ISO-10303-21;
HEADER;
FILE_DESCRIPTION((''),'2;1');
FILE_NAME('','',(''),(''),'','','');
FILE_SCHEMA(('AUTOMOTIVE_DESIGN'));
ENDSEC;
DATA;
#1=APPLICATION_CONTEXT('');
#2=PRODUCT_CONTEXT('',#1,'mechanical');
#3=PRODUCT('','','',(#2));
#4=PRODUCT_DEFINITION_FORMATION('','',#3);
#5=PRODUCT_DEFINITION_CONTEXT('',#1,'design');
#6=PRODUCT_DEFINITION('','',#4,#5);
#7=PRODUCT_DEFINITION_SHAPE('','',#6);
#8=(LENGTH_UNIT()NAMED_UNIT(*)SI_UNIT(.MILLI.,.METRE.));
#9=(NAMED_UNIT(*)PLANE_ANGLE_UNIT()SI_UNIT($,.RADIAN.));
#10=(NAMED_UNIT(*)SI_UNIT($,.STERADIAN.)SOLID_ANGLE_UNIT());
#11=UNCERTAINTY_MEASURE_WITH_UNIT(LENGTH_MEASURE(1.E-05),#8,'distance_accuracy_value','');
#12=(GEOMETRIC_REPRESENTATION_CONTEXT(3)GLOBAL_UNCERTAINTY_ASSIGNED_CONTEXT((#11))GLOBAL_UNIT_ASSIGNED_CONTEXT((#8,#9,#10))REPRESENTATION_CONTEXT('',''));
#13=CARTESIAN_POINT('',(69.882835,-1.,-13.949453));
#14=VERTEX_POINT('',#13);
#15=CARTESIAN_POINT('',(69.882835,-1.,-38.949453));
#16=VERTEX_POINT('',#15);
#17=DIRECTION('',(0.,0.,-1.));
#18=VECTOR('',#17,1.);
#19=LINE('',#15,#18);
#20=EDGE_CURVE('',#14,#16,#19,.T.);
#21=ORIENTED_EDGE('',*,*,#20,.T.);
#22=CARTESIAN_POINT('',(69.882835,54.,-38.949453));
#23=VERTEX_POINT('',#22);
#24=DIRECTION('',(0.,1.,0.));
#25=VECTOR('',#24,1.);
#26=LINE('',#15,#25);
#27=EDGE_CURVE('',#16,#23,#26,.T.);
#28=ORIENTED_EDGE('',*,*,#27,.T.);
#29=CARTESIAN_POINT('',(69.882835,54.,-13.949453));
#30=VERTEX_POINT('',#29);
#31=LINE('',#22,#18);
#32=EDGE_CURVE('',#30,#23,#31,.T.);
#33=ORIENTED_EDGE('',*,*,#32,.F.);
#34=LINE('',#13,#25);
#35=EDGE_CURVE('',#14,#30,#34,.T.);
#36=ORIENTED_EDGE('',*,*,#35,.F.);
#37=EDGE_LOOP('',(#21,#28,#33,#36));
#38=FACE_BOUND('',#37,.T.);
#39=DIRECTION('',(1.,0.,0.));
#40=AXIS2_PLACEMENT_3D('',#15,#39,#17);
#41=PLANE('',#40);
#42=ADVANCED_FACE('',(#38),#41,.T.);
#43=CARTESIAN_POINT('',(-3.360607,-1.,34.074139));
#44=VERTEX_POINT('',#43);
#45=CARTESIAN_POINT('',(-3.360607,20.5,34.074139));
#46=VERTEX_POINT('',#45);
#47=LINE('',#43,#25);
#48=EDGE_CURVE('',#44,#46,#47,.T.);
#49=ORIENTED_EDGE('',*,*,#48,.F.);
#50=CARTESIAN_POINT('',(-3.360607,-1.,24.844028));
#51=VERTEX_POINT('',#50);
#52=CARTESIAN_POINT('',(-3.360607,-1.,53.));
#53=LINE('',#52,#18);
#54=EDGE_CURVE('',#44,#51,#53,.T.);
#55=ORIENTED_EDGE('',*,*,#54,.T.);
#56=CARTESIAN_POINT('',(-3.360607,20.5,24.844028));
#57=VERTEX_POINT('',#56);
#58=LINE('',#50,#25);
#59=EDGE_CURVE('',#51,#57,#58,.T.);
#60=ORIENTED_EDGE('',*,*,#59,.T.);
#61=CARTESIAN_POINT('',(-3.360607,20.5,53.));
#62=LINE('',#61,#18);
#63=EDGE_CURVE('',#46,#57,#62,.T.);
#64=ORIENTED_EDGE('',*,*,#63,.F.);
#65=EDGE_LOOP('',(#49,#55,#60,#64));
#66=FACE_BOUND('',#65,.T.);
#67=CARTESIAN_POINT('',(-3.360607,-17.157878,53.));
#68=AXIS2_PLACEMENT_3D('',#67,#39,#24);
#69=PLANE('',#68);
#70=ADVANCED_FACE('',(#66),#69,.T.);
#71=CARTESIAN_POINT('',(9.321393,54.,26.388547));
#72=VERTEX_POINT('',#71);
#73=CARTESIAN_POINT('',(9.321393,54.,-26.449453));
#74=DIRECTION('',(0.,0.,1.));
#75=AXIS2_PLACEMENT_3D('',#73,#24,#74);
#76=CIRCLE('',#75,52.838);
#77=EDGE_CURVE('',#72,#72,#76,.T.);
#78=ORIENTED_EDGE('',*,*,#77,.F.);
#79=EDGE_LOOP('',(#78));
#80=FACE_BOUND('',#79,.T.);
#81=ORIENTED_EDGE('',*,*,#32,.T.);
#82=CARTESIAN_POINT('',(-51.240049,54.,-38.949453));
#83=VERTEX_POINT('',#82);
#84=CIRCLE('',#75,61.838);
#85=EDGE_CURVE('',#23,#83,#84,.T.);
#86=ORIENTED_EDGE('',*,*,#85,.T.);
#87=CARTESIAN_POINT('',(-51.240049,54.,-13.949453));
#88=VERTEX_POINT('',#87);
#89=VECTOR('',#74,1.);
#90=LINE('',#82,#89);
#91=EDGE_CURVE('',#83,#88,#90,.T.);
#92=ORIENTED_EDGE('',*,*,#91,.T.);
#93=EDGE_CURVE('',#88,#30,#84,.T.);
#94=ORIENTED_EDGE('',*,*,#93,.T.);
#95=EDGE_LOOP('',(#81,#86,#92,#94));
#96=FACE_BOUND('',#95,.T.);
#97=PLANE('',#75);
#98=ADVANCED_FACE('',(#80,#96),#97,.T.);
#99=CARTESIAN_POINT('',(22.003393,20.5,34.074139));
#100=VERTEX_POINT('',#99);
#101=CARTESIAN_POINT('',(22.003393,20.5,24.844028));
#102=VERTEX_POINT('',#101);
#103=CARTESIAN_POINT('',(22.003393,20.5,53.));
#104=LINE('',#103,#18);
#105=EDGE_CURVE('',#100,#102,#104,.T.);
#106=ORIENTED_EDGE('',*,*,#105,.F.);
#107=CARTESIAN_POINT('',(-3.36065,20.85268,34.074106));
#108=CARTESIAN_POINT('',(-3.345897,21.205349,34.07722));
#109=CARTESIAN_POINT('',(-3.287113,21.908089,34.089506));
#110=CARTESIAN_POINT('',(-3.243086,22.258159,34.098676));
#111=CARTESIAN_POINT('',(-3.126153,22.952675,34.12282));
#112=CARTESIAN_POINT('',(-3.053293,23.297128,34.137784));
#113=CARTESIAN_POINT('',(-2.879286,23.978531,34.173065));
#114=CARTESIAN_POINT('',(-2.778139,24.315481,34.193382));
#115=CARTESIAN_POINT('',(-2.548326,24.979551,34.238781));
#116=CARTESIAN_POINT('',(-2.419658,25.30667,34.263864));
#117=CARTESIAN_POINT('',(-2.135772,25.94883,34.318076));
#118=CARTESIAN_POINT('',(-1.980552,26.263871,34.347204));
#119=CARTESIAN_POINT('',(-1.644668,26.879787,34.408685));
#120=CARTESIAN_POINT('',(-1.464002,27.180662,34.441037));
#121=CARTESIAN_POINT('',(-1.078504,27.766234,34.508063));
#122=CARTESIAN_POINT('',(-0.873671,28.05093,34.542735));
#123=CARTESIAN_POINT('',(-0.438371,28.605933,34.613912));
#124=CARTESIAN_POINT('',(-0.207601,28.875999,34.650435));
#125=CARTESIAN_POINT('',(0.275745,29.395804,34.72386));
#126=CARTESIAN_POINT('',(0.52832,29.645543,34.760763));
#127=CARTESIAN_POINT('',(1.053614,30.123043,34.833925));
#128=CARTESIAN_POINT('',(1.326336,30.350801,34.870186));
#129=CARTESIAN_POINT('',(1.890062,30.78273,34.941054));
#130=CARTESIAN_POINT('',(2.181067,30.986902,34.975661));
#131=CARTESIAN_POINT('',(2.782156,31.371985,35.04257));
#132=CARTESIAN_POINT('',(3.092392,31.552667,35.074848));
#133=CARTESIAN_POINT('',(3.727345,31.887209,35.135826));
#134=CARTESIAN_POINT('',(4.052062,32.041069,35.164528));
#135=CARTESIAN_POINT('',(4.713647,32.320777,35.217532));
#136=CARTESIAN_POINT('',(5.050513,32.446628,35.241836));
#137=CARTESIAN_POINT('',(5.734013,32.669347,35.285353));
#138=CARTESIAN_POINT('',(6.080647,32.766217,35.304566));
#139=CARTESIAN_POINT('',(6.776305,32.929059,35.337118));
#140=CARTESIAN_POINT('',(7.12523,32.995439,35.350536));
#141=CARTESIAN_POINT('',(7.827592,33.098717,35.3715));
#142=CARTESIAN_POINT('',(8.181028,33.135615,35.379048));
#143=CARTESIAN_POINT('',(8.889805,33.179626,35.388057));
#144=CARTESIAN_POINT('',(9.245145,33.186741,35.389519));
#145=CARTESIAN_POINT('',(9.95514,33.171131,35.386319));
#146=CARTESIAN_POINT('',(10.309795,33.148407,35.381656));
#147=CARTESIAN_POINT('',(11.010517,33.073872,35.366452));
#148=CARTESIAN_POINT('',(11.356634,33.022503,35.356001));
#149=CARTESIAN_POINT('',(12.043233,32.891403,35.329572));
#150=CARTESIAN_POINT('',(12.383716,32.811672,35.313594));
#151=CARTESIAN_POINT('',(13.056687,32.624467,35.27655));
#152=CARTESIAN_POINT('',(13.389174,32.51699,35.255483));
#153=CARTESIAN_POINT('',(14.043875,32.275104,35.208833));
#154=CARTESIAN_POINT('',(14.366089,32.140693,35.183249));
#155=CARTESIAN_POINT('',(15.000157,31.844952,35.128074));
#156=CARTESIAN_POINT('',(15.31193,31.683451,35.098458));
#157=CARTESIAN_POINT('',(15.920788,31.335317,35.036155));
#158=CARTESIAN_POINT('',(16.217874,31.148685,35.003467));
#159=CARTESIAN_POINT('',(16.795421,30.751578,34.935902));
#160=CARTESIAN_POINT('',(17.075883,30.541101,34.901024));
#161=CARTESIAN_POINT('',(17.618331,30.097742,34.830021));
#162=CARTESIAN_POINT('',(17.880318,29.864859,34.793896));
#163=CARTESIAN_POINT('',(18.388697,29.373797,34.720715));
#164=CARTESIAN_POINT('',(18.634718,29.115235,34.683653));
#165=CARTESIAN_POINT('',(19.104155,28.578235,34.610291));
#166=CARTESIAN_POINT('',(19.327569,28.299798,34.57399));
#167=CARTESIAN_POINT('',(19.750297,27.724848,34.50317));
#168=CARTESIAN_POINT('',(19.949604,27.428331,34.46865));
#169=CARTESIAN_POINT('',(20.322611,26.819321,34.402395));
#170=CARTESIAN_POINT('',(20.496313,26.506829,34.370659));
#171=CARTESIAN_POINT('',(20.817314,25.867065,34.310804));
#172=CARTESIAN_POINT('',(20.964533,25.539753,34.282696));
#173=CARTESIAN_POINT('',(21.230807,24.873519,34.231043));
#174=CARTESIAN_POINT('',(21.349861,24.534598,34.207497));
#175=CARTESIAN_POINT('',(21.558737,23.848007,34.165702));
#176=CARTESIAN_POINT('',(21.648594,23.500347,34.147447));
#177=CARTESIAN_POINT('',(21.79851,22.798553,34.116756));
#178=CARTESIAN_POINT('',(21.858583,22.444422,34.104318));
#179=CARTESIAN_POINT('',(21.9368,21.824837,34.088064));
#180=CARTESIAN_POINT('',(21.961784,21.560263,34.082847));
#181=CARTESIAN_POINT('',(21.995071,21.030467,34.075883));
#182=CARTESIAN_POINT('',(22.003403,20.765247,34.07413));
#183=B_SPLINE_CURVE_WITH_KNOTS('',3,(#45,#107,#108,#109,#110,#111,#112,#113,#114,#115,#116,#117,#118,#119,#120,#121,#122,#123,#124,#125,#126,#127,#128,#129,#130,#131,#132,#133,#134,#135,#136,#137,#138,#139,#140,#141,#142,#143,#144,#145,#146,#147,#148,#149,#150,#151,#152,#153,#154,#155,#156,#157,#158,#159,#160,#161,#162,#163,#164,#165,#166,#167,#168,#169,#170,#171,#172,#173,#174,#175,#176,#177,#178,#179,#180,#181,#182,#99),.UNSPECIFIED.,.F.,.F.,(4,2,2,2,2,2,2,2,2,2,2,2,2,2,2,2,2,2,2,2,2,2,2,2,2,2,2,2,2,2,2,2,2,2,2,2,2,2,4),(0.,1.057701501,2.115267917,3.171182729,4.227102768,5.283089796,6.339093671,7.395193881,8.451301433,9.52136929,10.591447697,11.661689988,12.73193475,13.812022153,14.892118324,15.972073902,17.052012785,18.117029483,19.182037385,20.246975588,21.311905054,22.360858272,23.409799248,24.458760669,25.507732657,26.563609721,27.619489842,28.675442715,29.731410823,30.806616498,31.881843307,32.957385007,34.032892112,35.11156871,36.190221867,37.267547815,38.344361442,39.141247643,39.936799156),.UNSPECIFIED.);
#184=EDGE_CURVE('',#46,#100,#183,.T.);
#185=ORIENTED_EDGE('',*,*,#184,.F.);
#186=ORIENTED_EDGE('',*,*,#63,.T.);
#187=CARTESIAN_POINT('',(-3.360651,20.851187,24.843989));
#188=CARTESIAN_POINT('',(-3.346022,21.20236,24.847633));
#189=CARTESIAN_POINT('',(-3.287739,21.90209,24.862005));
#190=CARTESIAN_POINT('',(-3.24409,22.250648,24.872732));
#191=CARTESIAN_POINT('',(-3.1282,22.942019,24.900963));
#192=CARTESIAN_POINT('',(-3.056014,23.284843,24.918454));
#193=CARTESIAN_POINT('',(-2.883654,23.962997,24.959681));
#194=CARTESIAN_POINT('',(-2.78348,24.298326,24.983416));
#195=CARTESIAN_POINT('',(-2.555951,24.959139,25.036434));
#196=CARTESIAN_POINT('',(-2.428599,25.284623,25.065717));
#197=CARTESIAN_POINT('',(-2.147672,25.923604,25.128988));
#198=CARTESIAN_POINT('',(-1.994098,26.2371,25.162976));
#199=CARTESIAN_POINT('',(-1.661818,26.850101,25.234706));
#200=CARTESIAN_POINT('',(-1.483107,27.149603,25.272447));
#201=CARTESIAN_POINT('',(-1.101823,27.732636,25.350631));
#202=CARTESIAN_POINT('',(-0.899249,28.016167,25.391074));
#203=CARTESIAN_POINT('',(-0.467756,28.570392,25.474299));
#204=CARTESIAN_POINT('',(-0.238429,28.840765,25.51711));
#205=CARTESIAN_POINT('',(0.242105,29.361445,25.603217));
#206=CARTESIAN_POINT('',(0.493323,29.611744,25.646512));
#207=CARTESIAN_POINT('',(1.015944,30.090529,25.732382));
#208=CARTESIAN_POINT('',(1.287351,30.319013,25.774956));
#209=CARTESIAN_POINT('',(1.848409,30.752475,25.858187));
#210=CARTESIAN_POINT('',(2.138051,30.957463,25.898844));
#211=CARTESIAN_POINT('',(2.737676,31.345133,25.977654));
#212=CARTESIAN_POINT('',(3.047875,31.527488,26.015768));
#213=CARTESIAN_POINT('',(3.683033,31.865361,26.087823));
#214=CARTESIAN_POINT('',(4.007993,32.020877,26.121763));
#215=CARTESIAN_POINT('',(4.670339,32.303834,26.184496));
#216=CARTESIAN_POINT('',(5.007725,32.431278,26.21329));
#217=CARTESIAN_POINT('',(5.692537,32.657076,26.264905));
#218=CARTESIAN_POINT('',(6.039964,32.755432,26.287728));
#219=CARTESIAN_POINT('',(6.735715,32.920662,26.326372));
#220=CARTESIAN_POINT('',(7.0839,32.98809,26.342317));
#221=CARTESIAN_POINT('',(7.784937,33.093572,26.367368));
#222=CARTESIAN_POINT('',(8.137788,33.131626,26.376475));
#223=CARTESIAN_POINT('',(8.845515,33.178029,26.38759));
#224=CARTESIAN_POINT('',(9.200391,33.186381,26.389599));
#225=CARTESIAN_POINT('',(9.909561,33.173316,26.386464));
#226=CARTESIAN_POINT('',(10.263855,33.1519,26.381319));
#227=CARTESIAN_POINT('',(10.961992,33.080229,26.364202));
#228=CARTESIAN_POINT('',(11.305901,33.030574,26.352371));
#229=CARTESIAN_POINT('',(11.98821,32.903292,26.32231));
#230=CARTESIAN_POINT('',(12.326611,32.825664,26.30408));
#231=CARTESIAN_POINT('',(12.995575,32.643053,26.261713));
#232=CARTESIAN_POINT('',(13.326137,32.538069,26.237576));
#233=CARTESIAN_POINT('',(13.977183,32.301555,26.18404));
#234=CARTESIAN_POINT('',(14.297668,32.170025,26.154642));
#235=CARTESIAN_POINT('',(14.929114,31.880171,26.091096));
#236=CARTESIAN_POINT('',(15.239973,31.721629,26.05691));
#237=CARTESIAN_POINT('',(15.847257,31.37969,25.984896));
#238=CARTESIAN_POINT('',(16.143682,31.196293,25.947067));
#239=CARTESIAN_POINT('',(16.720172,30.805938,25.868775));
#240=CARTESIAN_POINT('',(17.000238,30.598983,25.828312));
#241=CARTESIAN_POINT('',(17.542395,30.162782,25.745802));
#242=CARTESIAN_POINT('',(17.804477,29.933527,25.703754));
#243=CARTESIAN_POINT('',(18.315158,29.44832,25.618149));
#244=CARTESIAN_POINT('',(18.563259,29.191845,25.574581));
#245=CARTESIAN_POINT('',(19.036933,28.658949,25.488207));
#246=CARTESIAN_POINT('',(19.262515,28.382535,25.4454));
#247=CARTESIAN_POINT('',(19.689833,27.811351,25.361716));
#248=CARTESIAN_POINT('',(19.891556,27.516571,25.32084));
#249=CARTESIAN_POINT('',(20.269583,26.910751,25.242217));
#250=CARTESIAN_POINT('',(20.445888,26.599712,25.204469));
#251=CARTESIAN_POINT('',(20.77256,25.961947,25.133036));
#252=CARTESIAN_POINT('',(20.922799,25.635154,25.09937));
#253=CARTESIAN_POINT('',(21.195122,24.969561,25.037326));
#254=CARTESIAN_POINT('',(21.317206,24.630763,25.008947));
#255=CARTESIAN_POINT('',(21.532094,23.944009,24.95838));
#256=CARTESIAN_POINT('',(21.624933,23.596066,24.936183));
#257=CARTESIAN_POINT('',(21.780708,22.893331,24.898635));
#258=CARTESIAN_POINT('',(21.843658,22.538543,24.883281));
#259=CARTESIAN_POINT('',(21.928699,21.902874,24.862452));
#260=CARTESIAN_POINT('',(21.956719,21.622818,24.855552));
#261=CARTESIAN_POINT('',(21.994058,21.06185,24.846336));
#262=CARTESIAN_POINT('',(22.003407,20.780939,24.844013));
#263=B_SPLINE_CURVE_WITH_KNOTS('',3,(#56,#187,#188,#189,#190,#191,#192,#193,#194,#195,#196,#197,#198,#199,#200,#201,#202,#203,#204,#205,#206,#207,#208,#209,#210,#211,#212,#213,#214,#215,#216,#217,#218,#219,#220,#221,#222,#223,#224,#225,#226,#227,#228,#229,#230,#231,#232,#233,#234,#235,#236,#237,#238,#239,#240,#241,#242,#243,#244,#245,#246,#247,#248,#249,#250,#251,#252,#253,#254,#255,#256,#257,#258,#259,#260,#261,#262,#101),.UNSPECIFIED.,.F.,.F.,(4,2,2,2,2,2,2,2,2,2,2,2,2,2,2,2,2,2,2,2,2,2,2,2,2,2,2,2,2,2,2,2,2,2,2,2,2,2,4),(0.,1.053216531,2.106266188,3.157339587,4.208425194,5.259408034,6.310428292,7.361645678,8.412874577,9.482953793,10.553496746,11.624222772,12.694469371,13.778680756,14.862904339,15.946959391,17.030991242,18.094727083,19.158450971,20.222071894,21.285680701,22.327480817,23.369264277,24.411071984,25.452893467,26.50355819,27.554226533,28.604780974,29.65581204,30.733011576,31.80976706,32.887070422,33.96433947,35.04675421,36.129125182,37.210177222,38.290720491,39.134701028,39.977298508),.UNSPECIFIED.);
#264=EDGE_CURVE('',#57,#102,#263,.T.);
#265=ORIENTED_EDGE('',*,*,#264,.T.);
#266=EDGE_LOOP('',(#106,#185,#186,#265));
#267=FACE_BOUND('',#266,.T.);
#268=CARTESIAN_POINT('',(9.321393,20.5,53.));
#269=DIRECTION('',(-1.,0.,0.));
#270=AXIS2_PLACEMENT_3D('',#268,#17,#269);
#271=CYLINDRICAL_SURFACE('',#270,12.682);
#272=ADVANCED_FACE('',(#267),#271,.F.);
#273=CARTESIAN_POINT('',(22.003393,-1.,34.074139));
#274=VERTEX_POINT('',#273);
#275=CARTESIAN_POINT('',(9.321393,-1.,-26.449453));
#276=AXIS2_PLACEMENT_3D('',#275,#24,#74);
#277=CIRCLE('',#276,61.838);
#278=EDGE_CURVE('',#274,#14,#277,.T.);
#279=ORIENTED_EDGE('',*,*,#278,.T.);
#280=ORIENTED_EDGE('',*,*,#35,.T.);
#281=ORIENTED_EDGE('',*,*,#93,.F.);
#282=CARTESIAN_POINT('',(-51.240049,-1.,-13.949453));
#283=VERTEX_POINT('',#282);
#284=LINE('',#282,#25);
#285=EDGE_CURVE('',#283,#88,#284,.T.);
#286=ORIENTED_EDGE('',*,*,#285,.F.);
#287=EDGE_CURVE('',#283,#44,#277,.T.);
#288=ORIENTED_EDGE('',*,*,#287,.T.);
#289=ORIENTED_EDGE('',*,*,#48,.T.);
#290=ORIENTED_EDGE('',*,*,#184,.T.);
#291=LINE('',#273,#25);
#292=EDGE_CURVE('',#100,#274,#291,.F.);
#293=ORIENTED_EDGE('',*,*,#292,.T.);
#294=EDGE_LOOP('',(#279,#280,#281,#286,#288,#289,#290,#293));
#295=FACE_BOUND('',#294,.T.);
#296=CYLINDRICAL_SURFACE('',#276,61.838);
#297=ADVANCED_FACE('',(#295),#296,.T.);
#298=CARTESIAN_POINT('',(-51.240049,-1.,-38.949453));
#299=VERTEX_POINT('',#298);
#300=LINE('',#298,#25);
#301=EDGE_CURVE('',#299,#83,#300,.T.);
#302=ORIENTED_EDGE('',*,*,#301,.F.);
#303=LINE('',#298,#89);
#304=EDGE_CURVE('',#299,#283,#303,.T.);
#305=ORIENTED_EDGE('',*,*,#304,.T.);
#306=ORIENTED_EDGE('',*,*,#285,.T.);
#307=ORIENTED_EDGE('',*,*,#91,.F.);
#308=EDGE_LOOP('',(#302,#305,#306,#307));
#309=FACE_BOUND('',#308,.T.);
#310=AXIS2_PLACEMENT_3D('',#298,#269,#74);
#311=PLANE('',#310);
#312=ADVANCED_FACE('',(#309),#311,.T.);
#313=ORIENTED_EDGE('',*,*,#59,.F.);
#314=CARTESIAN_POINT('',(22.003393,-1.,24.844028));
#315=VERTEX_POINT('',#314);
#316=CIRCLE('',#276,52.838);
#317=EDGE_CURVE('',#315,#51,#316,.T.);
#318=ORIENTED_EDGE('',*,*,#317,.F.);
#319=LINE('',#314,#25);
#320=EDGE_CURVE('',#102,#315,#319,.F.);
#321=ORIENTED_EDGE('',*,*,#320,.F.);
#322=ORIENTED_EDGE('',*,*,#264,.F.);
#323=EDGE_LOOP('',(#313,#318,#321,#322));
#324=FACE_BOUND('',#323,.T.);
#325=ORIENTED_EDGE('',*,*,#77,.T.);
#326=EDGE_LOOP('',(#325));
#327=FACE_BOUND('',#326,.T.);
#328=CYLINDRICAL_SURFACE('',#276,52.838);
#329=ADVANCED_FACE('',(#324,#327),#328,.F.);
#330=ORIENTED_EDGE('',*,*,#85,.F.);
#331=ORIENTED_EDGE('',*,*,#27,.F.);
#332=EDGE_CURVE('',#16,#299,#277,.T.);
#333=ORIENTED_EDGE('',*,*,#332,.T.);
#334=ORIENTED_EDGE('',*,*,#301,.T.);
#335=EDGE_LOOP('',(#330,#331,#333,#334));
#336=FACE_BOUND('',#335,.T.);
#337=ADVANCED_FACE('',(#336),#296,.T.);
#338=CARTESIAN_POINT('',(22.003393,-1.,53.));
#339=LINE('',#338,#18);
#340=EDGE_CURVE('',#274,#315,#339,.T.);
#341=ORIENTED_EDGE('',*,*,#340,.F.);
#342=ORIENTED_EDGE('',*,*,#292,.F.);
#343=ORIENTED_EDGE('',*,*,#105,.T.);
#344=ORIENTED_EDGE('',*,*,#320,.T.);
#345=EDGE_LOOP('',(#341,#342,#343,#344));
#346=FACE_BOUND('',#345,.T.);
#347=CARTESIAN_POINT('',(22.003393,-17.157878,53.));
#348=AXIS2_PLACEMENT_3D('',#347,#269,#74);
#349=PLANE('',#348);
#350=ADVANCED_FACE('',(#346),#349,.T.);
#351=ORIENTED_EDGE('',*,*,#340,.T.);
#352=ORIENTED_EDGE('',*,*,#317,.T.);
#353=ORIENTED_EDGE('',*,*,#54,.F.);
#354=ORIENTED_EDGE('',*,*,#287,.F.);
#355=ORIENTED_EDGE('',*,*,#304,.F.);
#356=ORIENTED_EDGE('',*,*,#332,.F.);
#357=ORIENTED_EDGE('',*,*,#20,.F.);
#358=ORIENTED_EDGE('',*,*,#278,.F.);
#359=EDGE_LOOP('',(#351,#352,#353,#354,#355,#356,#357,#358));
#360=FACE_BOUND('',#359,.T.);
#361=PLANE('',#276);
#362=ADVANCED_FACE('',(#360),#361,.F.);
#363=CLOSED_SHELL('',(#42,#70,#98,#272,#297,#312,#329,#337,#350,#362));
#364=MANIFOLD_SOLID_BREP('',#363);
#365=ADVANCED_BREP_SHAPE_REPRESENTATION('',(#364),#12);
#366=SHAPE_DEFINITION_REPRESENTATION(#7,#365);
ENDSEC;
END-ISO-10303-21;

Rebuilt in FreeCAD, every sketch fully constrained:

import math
import FreeCAD as App
import Part
import Sketcher
from FreeCAD import Vector
Q = App.Units.Quantity

doc = App.newDocument("Part")
body = doc.addObject("PartDesign::Body", "Body")

sketch1 = doc.addObject("Sketcher::SketchObject", "Sketch")
body.addObject(sketch1)
sketch1.AttachmentSupport = (doc.XZ_Plane, [""])
sketch1.MapMode = "FlatFace"
sketch1.addGeometry([
    Part.LineSegment(Vector(-51, -39, 0), Vector(-51, -14, 0)),
    Part.ArcOfCircle(Part.Circle(Vector(9, -26, 0), Vector(0, 0, 1), 62), math.radians(12), math.radians(168)),
    Part.LineSegment(Vector(70, -14, 0), Vector(70, -39, 0)),
    Part.ArcOfCircle(Part.Circle(Vector(9, -26, 0), Vector(0, 0, 1), 62), math.radians(-168), math.radians(-12)),
    Part.Circle(Vector(9, -26, 0), Vector(0, 0, 1), 53),
], False)
sketch1.addConstraint([
    Sketcher.Constraint("Coincident", 0, 2, 1, 2),
    Sketcher.Constraint("Coincident", 1, 1, 2, 1),
    Sketcher.Constraint("Coincident", 2, 2, 3, 2),
    Sketcher.Constraint("Coincident", 3, 1, 0, 1),
    Sketcher.Constraint("Vertical", 0),
    Sketcher.Constraint("Vertical", 2),
    Sketcher.Constraint("Coincident", 3, 3, 1, 3),
    Sketcher.Constraint("Coincident", 4, 3, 1, 3),
    Sketcher.Constraint("Equal", 1, 3),
    Sketcher.Constraint("Horizontal", 0, 2, 1, 1),
    Sketcher.Constraint("DistanceY", 0, 1, 0, 2, Q("25 mm")),
    Sketcher.Constraint("Diameter", 4, Q("105.676 mm")),
    Sketcher.Constraint("Radius", 1, Q("61.838 mm")),
    Sketcher.Constraint("DistanceX", 0, 2, -1, 1, Q("51.240049 mm")),
    Sketcher.Constraint("DistanceY", 1, 3, -1, 1, Q("26.449453 mm")),
])
pad1 = doc.addObject("PartDesign::Pad", "Pad")
body.addObject(pad1)
pad1.Profile = sketch1
pad1.Type = "TwoLengths"
pad1.Length = 54
pad1.Length2 = 1
pad1.Reversed = True

sketch2 = doc.addObject("Sketcher::SketchObject", "Sketch001")
body.addObject(sketch2)
sketch2.AttachmentSupport = (doc.XY_Plane, [""])
sketch2.MapMode = "FlatFace"
sketch2.addGeometry([
    Part.LineSegment(Vector(-3, 20, 0), Vector(-3, -1, 0)),
    Part.LineSegment(Vector(-3, -1, 0), Vector(22, -1, 0)),
    Part.LineSegment(Vector(22, -1, 0), Vector(22, 20, 0)),
    Part.ArcOfCircle(Part.Circle(Vector(9, 20, 0), Vector(0, 0, 1), 13), math.radians(0), math.radians(180)),
], False)
sketch2.addConstraint([
    Sketcher.Constraint("Coincident", 0, 2, 1, 1),
    Sketcher.Constraint("Coincident", 1, 2, 2, 1),
    Sketcher.Constraint("Tangent", 2, 2, 3, 1),
    Sketcher.Constraint("Tangent", 3, 2, 0, 1),
    Sketcher.Constraint("Vertical", 0),
    Sketcher.Constraint("Horizontal", 1),
    Sketcher.Constraint("Vertical", 2),
    Sketcher.Constraint("DistanceY", 0, 2, 0, 1, Q("21.5 mm")),
    Sketcher.Constraint("DistanceY", 0, 2, -1, 1, Q("1 mm")),
    Sketcher.Constraint("Radius", 3, Q("12.682 mm")),
    Sketcher.Constraint("DistanceX", -1, 1, 3, 3, Q("9.321393 mm")),
])
pocket1 = doc.addObject("PartDesign::Pocket", "Pocket")
body.addObject(pocket1)
pocket1.Profile = sketch2
pocket1.Length = 53
pocket1.Reversed = True

doc.recompute()
